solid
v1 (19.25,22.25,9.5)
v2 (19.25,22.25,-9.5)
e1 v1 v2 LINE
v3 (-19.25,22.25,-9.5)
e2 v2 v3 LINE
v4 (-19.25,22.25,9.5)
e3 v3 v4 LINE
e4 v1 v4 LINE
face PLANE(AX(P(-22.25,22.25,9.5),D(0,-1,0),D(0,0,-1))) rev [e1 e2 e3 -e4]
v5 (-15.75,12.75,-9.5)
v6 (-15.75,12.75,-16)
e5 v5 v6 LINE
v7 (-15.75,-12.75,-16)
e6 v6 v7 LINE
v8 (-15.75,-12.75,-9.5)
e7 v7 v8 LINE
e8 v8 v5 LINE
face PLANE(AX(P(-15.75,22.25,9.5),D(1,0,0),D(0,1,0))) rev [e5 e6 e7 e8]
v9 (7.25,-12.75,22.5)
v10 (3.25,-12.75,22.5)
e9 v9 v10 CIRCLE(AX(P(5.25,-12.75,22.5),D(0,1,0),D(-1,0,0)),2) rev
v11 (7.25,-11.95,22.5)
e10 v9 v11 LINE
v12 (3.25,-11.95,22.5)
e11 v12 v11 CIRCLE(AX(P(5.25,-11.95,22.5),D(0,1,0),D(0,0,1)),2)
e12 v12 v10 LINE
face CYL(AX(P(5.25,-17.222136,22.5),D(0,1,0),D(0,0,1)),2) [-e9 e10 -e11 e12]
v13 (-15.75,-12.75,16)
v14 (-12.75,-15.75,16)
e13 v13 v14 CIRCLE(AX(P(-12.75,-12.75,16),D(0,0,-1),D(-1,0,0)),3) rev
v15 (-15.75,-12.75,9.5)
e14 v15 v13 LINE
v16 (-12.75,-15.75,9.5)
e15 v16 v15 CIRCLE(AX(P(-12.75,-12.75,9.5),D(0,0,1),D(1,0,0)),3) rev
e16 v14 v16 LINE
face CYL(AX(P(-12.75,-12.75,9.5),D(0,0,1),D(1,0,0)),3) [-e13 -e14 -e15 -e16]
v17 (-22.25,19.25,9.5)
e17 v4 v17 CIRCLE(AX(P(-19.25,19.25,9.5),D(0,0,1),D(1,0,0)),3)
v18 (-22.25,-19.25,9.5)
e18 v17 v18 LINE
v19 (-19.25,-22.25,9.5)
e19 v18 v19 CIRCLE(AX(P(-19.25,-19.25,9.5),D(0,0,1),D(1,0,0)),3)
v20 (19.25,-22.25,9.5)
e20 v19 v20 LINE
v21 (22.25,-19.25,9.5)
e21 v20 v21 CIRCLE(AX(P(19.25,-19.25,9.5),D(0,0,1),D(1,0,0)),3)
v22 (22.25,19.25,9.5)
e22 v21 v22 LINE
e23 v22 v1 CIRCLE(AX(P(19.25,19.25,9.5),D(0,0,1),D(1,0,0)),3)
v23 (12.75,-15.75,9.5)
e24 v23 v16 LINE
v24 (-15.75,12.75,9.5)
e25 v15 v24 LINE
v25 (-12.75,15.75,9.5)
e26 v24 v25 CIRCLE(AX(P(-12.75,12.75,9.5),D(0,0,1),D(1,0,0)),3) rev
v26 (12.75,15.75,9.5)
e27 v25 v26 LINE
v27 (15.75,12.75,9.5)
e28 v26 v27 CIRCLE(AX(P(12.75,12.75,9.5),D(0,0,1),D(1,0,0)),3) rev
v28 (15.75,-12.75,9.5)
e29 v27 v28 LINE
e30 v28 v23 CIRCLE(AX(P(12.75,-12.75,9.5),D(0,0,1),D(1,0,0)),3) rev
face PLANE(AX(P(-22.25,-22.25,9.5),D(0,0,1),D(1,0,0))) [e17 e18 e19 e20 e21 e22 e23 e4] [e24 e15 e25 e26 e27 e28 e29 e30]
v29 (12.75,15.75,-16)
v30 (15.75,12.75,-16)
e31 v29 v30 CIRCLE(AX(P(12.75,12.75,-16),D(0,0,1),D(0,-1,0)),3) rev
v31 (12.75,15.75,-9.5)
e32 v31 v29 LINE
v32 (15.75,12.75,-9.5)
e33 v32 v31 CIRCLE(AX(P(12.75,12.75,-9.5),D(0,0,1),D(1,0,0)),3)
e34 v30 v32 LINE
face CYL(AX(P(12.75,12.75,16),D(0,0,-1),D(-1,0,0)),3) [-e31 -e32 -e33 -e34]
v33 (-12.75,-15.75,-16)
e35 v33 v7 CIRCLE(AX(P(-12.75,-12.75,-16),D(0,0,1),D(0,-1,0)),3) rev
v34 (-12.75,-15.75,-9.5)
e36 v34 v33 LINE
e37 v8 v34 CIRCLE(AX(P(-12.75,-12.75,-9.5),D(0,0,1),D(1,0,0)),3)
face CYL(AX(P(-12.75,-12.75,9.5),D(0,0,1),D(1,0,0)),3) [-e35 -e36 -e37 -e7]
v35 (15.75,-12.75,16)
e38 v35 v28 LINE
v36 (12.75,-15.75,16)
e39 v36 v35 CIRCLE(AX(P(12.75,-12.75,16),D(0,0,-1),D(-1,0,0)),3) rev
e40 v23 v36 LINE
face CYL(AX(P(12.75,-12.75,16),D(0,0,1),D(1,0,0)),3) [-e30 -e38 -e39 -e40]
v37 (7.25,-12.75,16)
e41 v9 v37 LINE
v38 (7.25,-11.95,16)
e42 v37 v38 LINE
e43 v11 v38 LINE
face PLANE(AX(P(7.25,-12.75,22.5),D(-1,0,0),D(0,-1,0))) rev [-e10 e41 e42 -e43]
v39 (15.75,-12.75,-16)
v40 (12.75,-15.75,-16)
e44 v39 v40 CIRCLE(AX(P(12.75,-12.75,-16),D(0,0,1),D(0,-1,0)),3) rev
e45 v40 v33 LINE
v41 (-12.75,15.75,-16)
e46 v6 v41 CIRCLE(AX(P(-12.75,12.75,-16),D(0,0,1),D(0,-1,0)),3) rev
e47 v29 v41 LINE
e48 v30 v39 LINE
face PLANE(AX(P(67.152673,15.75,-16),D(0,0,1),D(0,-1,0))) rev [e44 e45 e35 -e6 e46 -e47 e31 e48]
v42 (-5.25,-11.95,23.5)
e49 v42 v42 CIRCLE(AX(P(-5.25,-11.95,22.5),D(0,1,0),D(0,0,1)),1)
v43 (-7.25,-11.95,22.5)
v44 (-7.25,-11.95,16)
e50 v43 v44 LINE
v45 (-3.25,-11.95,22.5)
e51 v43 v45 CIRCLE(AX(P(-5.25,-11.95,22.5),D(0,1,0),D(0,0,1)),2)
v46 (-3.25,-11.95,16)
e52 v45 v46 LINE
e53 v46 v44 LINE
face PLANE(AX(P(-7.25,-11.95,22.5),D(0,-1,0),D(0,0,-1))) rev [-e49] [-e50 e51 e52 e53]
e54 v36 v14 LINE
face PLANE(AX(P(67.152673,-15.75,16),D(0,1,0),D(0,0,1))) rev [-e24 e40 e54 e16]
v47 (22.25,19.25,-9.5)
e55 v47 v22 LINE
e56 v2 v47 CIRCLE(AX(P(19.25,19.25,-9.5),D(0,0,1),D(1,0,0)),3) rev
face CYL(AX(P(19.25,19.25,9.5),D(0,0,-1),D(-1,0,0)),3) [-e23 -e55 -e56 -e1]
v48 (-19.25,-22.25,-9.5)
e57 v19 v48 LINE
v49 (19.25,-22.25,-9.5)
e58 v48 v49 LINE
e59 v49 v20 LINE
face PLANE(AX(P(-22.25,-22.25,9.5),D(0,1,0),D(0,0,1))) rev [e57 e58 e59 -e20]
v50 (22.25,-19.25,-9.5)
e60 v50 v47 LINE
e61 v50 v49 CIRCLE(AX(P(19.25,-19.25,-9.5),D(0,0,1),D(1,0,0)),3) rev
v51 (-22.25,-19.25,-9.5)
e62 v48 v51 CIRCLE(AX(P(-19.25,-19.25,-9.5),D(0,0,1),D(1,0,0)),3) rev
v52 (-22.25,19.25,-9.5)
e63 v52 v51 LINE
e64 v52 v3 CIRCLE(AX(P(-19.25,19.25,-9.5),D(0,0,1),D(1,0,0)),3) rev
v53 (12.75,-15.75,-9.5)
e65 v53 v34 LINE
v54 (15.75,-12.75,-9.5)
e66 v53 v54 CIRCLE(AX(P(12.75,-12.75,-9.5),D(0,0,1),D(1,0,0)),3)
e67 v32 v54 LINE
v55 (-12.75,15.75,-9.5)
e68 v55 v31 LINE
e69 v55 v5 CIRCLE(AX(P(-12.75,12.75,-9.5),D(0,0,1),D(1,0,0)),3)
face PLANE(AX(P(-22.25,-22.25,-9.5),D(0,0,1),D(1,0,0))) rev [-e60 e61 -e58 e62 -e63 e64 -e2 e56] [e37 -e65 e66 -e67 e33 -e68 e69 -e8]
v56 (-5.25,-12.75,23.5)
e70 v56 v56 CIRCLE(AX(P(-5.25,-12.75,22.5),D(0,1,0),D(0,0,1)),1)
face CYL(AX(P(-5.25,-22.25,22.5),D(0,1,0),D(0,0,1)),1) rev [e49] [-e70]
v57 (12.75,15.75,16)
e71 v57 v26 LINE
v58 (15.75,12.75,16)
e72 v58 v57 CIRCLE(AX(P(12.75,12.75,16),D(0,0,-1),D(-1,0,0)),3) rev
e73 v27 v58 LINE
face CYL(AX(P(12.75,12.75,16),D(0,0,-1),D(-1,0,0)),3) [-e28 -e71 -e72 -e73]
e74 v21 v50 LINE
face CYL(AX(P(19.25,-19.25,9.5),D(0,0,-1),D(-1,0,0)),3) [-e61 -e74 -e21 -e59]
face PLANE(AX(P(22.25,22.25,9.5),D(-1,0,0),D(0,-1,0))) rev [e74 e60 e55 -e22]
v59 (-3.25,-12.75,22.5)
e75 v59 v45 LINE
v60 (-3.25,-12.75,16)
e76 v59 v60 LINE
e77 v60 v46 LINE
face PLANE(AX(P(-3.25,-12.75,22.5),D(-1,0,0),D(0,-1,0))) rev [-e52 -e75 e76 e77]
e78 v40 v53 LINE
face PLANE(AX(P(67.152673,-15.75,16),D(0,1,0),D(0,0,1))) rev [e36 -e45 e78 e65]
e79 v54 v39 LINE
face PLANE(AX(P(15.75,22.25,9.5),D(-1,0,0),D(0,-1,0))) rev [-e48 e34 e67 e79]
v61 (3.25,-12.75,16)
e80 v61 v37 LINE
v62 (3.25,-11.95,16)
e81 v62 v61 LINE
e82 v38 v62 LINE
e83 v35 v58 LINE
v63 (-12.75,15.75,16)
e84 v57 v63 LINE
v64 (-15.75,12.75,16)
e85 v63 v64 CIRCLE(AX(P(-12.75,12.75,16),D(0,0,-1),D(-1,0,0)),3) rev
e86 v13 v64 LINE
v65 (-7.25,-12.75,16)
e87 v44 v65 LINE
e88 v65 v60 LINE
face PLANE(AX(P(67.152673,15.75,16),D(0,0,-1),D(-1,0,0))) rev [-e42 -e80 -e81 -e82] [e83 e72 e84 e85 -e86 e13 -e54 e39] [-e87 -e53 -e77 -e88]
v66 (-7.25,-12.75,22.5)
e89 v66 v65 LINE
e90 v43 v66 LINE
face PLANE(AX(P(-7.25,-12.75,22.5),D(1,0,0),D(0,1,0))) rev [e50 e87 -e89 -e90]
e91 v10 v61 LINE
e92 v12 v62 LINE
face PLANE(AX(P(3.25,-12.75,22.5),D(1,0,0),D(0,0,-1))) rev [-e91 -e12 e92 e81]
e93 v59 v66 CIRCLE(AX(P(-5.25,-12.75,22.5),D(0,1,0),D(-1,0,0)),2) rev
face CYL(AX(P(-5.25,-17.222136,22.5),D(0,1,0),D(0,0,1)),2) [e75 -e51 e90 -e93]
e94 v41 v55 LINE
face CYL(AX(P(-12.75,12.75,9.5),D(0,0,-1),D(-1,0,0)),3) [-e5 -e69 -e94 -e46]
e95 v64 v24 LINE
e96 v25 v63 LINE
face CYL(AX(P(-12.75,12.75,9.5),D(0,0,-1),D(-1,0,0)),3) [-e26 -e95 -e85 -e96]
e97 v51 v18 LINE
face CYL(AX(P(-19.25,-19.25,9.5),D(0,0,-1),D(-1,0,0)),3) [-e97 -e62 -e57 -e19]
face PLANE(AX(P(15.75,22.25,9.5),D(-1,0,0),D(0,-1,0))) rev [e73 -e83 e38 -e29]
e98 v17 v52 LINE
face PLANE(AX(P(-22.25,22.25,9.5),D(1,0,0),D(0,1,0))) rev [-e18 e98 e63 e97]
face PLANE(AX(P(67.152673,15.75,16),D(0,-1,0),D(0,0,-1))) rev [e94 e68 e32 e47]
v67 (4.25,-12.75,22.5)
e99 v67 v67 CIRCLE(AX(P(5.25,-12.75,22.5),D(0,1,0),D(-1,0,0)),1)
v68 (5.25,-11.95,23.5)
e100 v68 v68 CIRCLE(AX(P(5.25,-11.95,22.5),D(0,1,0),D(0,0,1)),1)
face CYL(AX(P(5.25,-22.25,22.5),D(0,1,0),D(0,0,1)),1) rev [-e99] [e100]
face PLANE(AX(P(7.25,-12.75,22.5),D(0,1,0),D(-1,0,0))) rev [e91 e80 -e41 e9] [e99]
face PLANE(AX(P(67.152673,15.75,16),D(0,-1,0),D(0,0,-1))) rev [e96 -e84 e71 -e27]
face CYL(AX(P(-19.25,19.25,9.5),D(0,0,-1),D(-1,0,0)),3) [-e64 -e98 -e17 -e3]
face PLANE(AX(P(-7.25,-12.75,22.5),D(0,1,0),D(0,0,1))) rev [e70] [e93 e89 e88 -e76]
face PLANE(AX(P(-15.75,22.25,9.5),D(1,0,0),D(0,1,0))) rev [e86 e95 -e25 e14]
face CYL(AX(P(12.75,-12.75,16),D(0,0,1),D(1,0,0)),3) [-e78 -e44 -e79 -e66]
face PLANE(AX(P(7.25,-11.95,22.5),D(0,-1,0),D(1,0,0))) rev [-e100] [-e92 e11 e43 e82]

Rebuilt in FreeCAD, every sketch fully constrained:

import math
import FreeCAD as App
import Part
import Sketcher
Q = App.Units.Quantity


def edges_at(feature, points):
    """Names of the edges that pass closest to the given points."""
    edges = feature.Shape.Edges
    near = lambda p: min(range(len(edges)), key=lambda i: edges[i].distToShape(Part.Vertex(*p))[0])
    return sorted({f"Edge{near(p) + 1}" for p in points})

doc = App.newDocument("Part")
body = doc.addObject("PartDesign::Body", "Body")

sketch1 = body.newObject("Sketcher::SketchObject", "Sketch")
sketch1.AttachmentSupport = (doc.getObject("XY_Plane"), [""])
sketch1.MapMode = "FlatFace"
sketch1.addGeometry(Part.LineSegment(App.Vector(-22, 22, 0), App.Vector(-22, -22, 0)), False)
sketch1.addGeometry(Part.LineSegment(App.Vector(-22, -22, 0), App.Vector(22, -22, 0)), False)
sketch1.addGeometry(Part.LineSegment(App.Vector(22, -22, 0), App.Vector(22, 22, 0)), False)
sketch1.addGeometry(Part.LineSegment(App.Vector(22, 22, 0), App.Vector(-22, 22, 0)), False)
sketch1.addConstraint(Sketcher.Constraint("Coincident", 0, 2, 1, 1))
sketch1.addConstraint(Sketcher.Constraint("Coincident", 1, 2, 2, 1))
sketch1.addConstraint(Sketcher.Constraint("Coincident", 2, 2, 3, 1))
sketch1.addConstraint(Sketcher.Constraint("Coincident", 3, 2, 0, 1))
sketch1.addConstraint(Sketcher.Constraint("Vertical", 0))
sketch1.addConstraint(Sketcher.Constraint("Horizontal", 1))
sketch1.addConstraint(Sketcher.Constraint("Vertical", 2))
sketch1.addConstraint(Sketcher.Constraint("Horizontal", 3))
sketch1.addConstraint(Sketcher.Constraint("Symmetric", 0, 2, 2, 2, -1, 1))
sketch1.addConstraint(Sketcher.Constraint("Equal", 3, 0))
sketch1.addConstraint(Sketcher.Constraint("DistanceX", 1, 1, 1, 2, Q("44.5 mm")))
pad1 = body.newObject("PartDesign::Pad", "Pad")
pad1.Profile = sketch1
pad1.Length = 19
pad1.Midplane = True

sketch2 = body.newObject("Sketcher::SketchObject", "Sketch001")
sketch2.AttachmentSupport = (doc.getObject("YZ_Plane"), [""])
sketch2.MapMode = "FlatFace"
sketch2.AttachmentOffset = App.Placement(App.Vector(0, 0, -15.75), App.Rotation())
sketch2.addGeometry(Part.LineSegment(App.Vector(16, 16, 0), App.Vector(-16, 16, 0)), False)
sketch2.addGeometry(Part.LineSegment(App.Vector(-16, 16, 0), App.Vector(-16, -16, 0)), False)
sketch2.addGeometry(Part.LineSegment(App.Vector(-16, -16, 0), App.Vector(16, -16, 0)), False)
sketch2.addGeometry(Part.LineSegment(App.Vector(16, -16, 0), App.Vector(16, 16, 0)), False)
sketch2.addConstraint(Sketcher.Constraint("Coincident", 0, 2, 1, 1))
sketch2.addConstraint(Sketcher.Constraint("Coincident", 1, 2, 2, 1))
sketch2.addConstraint(Sketcher.Constraint("Coincident", 2, 2, 3, 1))
sketch2.addConstraint(Sketcher.Constraint("Coincident", 3, 2, 0, 1))
sketch2.addConstraint(Sketcher.Constraint("Horizontal", 0))
sketch2.addConstraint(Sketcher.Constraint("Vertical", 1))
sketch2.addConstraint(Sketcher.Constraint("Horizontal", 2))
sketch2.addConstraint(Sketcher.Constraint("Vertical", 3))
sketch2.addConstraint(Sketcher.Constraint("Symmetric", 0, 2, 2, 2, -1, 1))
sketch2.addConstraint(Sketcher.Constraint("DistanceY", 1, 2, 1, 1, Q("32 mm")))
sketch2.addConstraint(Sketcher.Constraint("DistanceX", 0, 2, 0, 1, Q("31.5 mm")))
pad2 = body.newObject("PartDesign::Pad", "Pad001")
pad2.Profile = sketch2
pad2.Length = 31.5
doc.recompute()

fillet = body.newObject("PartDesign::Fillet", "Fillet")
fillet.Base = (pad2, edges_at(pad2, [
    (15.75, 15.75, -12.75),
    (15.75, -15.75, -12.75),
    (-15.75, -15.75, -12.75),
    (-15.75, 15.75, -12.75),
    (15.75, 15.75, 12.75),
    (15.75, -15.75, 12.75),
    (-15.75, -15.75, 12.75),
    (-15.75, 15.75, 12.75),
    (-22.25, 22.25, 0),
    (22.25, 22.25, 0),
    (22.25, -22.25, 0),
    (-22.25, -22.25, 0),
]))
fillet.Radius = 3

sketch3 = body.newObject("Sketcher::SketchObject", "Sketch002")
sketch3.AttachmentSupport = (doc.getObject("XY_Plane"), [""])
sketch3.MapMode = "FlatFace"
sketch3.AttachmentOffset = App.Placement(App.Vector(0, 0, 16), App.Rotation())
sketch3.addGeometry(Part.LineSegment(App.Vector(-7.2, -11.9, 0), App.Vector(-7.2, -12.8, 0)), False)
sketch3.addGeometry(Part.LineSegment(App.Vector(-7.2, -12.8, 0), App.Vector(-3.2, -12.8, 0)), False)
sketch3.addGeometry(Part.LineSegment(App.Vector(-3.2, -12.8, 0), App.Vector(-3.2, -11.9, 0)), False)
sketch3.addGeometry(Part.LineSegment(App.Vector(-3.2, -11.9, 0), App.Vector(-7.2, -11.9, 0)), False)
sketch3.addGeometry(Part.LineSegment(App.Vector(3.2, -11.9, 0), App.Vector(3.2, -12.8, 0)), False)
sketch3.addGeometry(Part.LineSegment(App.Vector(3.2, -12.8, 0), App.Vector(7.2, -12.8, 0)), False)
sketch3.addGeometry(Part.LineSegment(App.Vector(7.2, -12.8, 0), App.Vector(7.2, -11.9, 0)), False)
sketch3.addGeometry(Part.LineSegment(App.Vector(7.2, -11.9, 0), App.Vector(3.2, -11.9, 0)), False)
sketch3.addConstraint(Sketcher.Constraint("Coincident", 0, 2, 1, 1))
sketch3.addConstraint(Sketcher.Constraint("Coincident", 1, 2, 2, 1))
sketch3.addConstraint(Sketcher.Constraint("Coincident", 2, 2, 3, 1))
sketch3.addConstraint(Sketcher.Constraint("Coincident", 3, 2, 0, 1))
sketch3.addConstraint(Sketcher.Constraint("Coincident", 4, 2, 5, 1))
sketch3.addConstraint(Sketcher.Constraint("Coincident", 5, 2, 6, 1))
sketch3.addConstraint(Sketcher.Constraint("Coincident", 6, 2, 7, 1))
sketch3.addConstraint(Sketcher.Constraint("Coincident", 7, 2, 4, 1))
sketch3.addConstraint(Sketcher.Constraint("Vertical", 0))
sketch3.addConstraint(Sketcher.Constraint("Horizontal", 1))
sketch3.addConstraint(Sketcher.Constraint("Vertical", 2))
sketch3.addConstraint(Sketcher.Constraint("Horizontal", 3))
sketch3.addConstraint(Sketcher.Constraint("Vertical", 4))
sketch3.addConstraint(Sketcher.Constraint("Horizontal", 5))
sketch3.addConstraint(Sketcher.Constraint("Vertical", 6))
sketch3.addConstraint(Sketcher.Constraint("Horizontal", 7))
sketch3.addConstraint(Sketcher.Constraint("Symmetric", 1, 2, 4, 2, -2))
sketch3.addConstraint(Sketcher.Constraint("Symmetric", 3, 2, 6, 2, -2))
sketch3.addConstraint(Sketcher.Constraint("DistanceX", 1, 1, 1, 2, Q("4 mm")))
sketch3.addConstraint(Sketcher.Constraint("DistanceY", 0, 2, 0, 1, Q("0.8 mm")))
sketch3.addConstraint(Sketcher.Constraint("DistanceX", 1, 2, 4, 2, Q("6.5 mm")))
sketch3.addConstraint(Sketcher.Constraint("DistanceY", 0, 2, -1, 1, Q("12.75 mm")))
pad3 = body.newObject("PartDesign::Pad", "Pad002")
pad3.Profile = sketch3
pad3.Length = 6.5

sketch4 = body.newObject("Sketcher::SketchObject", "Sketch003")
sketch4.AttachmentSupport = (doc.getObject("XZ_Plane"), [""])
sketch4.MapMode = "FlatFace"
sketch4.AttachmentOffset = App.Placement(App.Vector(0, 0, 11.95), App.Rotation())
sketch4.addGeometry(Part.LineSegment(App.Vector(7.2, 22.5, 0), App.Vector(3.2, 22.5, 0)), False)
sketch4.addGeometry(Part.ArcOfCircle(Part.Circle(App.Vector(5.2, 22.5, 0), App.Vector(0, 0, 1), 2), math.radians(0), math.radians(180)), False)
sketch4.addGeometry(Part.LineSegment(App.Vector(-3.2, 22.5, 0), App.Vector(-7.2, 22.5, 0)), False)
sketch4.addGeometry(Part.ArcOfCircle(Part.Circle(App.Vector(-5.2, 22.5, 0), App.Vector(0, 0, 1), 2), math.radians(0), math.radians(180)), False)
sketch4.addConstraint(Sketcher.Constraint("Coincident", 0, 1, 1, 1))
sketch4.addConstraint(Sketcher.Constraint("Coincident", 1, 2, 0, 2))
sketch4.addConstraint(Sketcher.Constraint("Coincident", 2, 1, 3, 1))
sketch4.addConstraint(Sketcher.Constraint("Coincident", 3, 2, 2, 2))
sketch4.addConstraint(Sketcher.Constraint("Horizontal", 0))
sketch4.addConstraint(Sketcher.Constraint("Horizontal", 2))
sketch4.addConstraint(Sketcher.Constraint("Equal", 1, 3))
sketch4.addConstraint(Sketcher.Constraint("Symmetric", 1, 3, 3, 3, -2))
sketch4.addConstraint(Sketcher.Constraint("Horizontal", 3, 3, 0, 1))
sketch4.addConstraint(Sketcher.Constraint("Horizontal", 1, 2, 2, 1))
sketch4.addConstraint(Sketcher.Constraint("Radius", 1, Q("2 mm")))
sketch4.addConstraint(Sketcher.Constraint("DistanceY", -1, 1, 1, 3, Q("22.5 mm")))
sketch4.addConstraint(Sketcher.Constraint("DistanceX", 3, 3, 1, 3, Q("10.5 mm")))
pad4 = body.newObject("PartDesign::Pad", "Pad003")
pad4.Profile = sketch4
pad4.Length = 0.8

sketch5 = body.newObject("Sketcher::SketchObject", "Sketch004")
sketch5.AttachmentSupport = (doc.getObject("XZ_Plane"), [""])
sketch5.MapMode = "FlatFace"
sketch5.AttachmentOffset = App.Placement(App.Vector(0, 0, 11.95), App.Rotation())
sketch5.addGeometry(Part.Circle(App.Vector(-5.2, 22.5, 0), App.Vector(0, 0, 1), 1), False)
sketch5.addGeometry(Part.Circle(App.Vector(5.2, 22.5, 0), App.Vector(0, 0, 1), 1), False)
sketch5.addConstraint(Sketcher.Constraint("Equal", 0, 1))
sketch5.addConstraint(Sketcher.Constraint("Symmetric", 0, 3, 1, 3, -2))
sketch5.addConstraint(Sketcher.Constraint("Diameter", 0, Q("2 mm")))
sketch5.addConstraint(Sketcher.Constraint("DistanceY", -1, 1, 0, 3, Q("22.5 mm")))
sketch5.addConstraint(Sketcher.Constraint("DistanceX", 0, 3, 1, 3, Q("10.5 mm")))
pocket1 = body.newObject("PartDesign::Pocket", "Pocket")
pocket1.Profile = sketch5
pocket1.Type = "ThroughAll"
pocket1.Reversed = True

doc.recompute()
